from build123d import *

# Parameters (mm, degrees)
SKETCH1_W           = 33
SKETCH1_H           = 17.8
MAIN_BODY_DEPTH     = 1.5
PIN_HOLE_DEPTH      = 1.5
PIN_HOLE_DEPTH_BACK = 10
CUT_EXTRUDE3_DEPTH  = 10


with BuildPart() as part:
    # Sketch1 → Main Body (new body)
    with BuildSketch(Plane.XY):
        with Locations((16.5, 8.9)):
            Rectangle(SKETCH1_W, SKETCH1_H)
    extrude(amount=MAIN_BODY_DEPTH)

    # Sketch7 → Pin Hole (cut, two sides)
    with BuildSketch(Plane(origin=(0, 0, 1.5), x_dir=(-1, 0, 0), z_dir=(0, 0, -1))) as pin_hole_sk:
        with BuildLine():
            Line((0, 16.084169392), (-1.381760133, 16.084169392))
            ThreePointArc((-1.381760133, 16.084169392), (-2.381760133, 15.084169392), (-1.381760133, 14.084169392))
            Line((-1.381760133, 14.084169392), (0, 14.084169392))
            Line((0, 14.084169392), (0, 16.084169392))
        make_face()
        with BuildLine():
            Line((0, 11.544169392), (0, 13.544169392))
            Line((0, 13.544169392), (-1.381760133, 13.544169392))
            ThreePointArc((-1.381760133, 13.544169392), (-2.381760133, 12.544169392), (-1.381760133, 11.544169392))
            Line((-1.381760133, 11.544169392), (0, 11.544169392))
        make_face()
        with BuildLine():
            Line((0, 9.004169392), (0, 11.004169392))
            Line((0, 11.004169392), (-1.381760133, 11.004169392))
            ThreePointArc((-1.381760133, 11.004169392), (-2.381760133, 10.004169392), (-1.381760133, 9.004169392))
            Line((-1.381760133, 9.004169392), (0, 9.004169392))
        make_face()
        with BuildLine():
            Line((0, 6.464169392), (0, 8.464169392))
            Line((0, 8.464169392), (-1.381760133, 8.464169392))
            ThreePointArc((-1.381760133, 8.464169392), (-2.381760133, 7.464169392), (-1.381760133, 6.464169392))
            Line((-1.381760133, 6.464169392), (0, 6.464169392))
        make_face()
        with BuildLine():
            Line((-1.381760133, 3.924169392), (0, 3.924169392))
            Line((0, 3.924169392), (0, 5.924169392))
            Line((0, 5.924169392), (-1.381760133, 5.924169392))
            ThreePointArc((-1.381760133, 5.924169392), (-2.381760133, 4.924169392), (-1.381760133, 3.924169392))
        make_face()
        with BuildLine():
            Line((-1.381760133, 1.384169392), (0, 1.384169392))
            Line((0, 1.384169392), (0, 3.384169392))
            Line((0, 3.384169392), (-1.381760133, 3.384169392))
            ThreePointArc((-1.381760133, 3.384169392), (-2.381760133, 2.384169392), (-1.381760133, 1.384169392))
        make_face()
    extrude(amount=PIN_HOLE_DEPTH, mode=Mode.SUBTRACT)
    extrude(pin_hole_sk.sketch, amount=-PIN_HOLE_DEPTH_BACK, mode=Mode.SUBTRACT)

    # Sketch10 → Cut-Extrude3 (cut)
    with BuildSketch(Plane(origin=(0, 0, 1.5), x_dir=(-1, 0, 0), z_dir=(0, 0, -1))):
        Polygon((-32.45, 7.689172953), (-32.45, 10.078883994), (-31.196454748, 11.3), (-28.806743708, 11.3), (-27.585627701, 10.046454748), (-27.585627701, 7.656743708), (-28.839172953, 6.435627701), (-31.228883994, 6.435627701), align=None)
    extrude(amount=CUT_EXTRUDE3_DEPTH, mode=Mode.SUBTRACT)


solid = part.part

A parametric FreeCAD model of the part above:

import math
import FreeCAD as App
import Part
import Sketcher

V = App.Vector


def add_polygon(sketch, points):
    """Adds a closed chain of lines whose ends are joined by coincident constraints."""
    first, n = sketch.GeometryCount, len(points)
    for a, b in zip(points, points[1:] + points[:1]):
        sketch.addGeometry(Part.LineSegment(App.Vector(*a, 0), App.Vector(*b, 0)), False)
    for i in range(n):
        sketch.addConstraint(Sketcher.Constraint("Coincident", first + i, 2, first + (i + 1) % n, 1))

doc = App.newDocument("Part")
body = doc.addObject("PartDesign::Body", "Body")

sketch1 = body.newObject("Sketcher::SketchObject", "Sketch")
sketch1.AttachmentSupport = (doc.getObject("XY_Plane"), [""])
sketch1.MapMode = "FlatFace"
add_polygon(sketch1, [(0, 18), (0, 0), (33, 0), (33, 18)])
sketch1.addConstraint(Sketcher.Constraint("Vertical", 0))
sketch1.addConstraint(Sketcher.Constraint("Horizontal", 1))
sketch1.addConstraint(Sketcher.Constraint("Vertical", 2))
sketch1.addConstraint(Sketcher.Constraint("Horizontal", 3))
sketch1.addConstraint(Sketcher.Constraint("Coincident", 0, 2, -1, 1))
sketch1.addConstraint(Sketcher.Constraint("DistanceX", 1, 1, 1, 2, 33.0))
sketch1.addConstraint(Sketcher.Constraint("DistanceY", 0, 2, 0, 1, 17.8))
pad1 = body.newObject("PartDesign::Pad", "Pad")
pad1.Profile = sketch1
pad1.Length = 1.5

sketch2 = body.newObject("Sketcher::SketchObject", "Sketch001")
sketch2.AttachmentSupport = (doc.getObject("XY_Plane"), [""])
sketch2.MapMode = "FlatFace"
sketch2.AttachmentOffset = App.Placement(V(0, 0, 1.5), App.Rotation())
sketch2.addGeometry(Part.LineSegment(V(0, 16.1, 0), V(1.4, 16.1, 0)), False)
sketch2.addGeometry(Part.ArcOfCircle(Part.Circle(V(1.4, 15.1, 0), V(0, 0, 1), 1), math.radians(-90), math.radians(90)), False)
sketch2.addGeometry(Part.LineSegment(V(1.4, 14.1, 0), V(0, 14.1, 0)), False)
sketch2.addGeometry(Part.LineSegment(V(0, 14.1, 0), V(0, 16.1, 0)), False)
sketch2.addGeometry(Part.LineSegment(V(0, 11.5, 0), V(0, 13.5, 0)), False)
sketch2.addGeometry(Part.LineSegment(V(0, 13.5, 0), V(1.4, 13.5, 0)), False)
sketch2.addGeometry(Part.ArcOfCircle(Part.Circle(V(1.4, 12.5, 0), V(0, 0, 1), 1), math.radians(-90), math.radians(90)), False)
sketch2.addGeometry(Part.LineSegment(V(1.4, 11.5, 0), V(0, 11.5, 0)), False)
sketch2.addGeometry(Part.LineSegment(V(0, 9, 0), V(0, 11, 0)), False)
sketch2.addGeometry(Part.LineSegment(V(0, 11, 0), V(1.4, 11, 0)), False)
sketch2.addGeometry(Part.ArcOfCircle(Part.Circle(V(1.4, 10, 0), V(0, 0, 1), 1), math.radians(-90), math.radians(90)), False)
sketch2.addGeometry(Part.LineSegment(V(1.4, 9, 0), V(0, 9, 0)), False)
sketch2.addGeometry(Part.LineSegment(V(0, 6.5, 0), V(0, 8.5, 0)), False)
sketch2.addGeometry(Part.LineSegment(V(0, 8.5, 0), V(1.4, 8.5, 0)), False)
sketch2.addGeometry(Part.ArcOfCircle(Part.Circle(V(1.4, 7.5, 0), V(0, 0, 1), 1), math.radians(-90), math.radians(90)), False)
sketch2.addGeometry(Part.LineSegment(V(1.4, 6.5, 0), V(0, 6.5, 0)), False)
sketch2.addGeometry(Part.LineSegment(V(1.4, 3.9, 0), V(0, 3.9, 0)), False)
sketch2.addGeometry(Part.LineSegment(V(0, 3.9, 0), V(0, 5.9, 0)), False)
sketch2.addGeometry(Part.LineSegment(V(0, 5.9, 0), V(1.4, 5.9, 0)), False)
sketch2.addGeometry(Part.ArcOfCircle(Part.Circle(V(1.4, 4.9, 0), V(0, 0, 1), 1), math.radians(-90), math.radians(90)), False)
sketch2.addGeometry(Part.LineSegment(V(1.4, 1.4, 0), V(0, 1.4, 0)), False)
sketch2.addGeometry(Part.LineSegment(V(0, 1.4, 0), V(0, 3.4, 0)), False)
sketch2.addGeometry(Part.LineSegment(V(0, 3.4, 0), V(1.4, 3.4, 0)), False)
sketch2.addGeometry(Part.ArcOfCircle(Part.Circle(V(1.4, 2.4, 0), V(0, 0, 1), 1), math.radians(-90), math.radians(90)), False)
sketch2.addConstraint(Sketcher.Constraint("Tangent", 0, 2, 1, 2))
sketch2.addConstraint(Sketcher.Constraint("Tangent", 1, 1, 2, 1))
sketch2.addConstraint(Sketcher.Constraint("Coincident", 2, 2, 3, 1))
sketch2.addConstraint(Sketcher.Constraint("Coincident", 3, 2, 0, 1))
sketch2.addConstraint(Sketcher.Constraint("Coincident", 4, 2, 5, 1))
sketch2.addConstraint(Sketcher.Constraint("Tangent", 5, 2, 6, 2))
sketch2.addConstraint(Sketcher.Constraint("Tangent", 6, 1, 7, 1))
sketch2.addConstraint(Sketcher.Constraint("Coincident", 7, 2, 4, 1))
sketch2.addConstraint(Sketcher.Constraint("Coincident", 8, 2, 9, 1))
sketch2.addConstraint(Sketcher.Constraint("Tangent", 9, 2, 10, 2))
sketch2.addConstraint(Sketcher.Constraint("Tangent", 10, 1, 11, 1))
sketch2.addConstraint(Sketcher.Constraint("Coincident", 11, 2, 8, 1))
sketch2.addConstraint(Sketcher.Constraint("Coincident", 12, 2, 13, 1))
sketch2.addConstraint(Sketcher.Constraint("Tangent", 13, 2, 14, 2))
sketch2.addConstraint(Sketcher.Constraint("Tangent", 14, 1, 15, 1))
sketch2.addConstraint(Sketcher.Constraint("Coincident", 15, 2, 12, 1))
sketch2.addConstraint(Sketcher.Constraint("Coincident", 16, 2, 17, 1))
sketch2.addConstraint(Sketcher.Constraint("Coincident", 17, 2, 18, 1))
sketch2.addConstraint(Sketcher.Constraint("Tangent", 18, 2, 19, 2))
sketch2.addConstraint(Sketcher.Constraint("Tangent", 19, 1, 16, 1))
sketch2.addConstraint(Sketcher.Constraint("Coincident", 20, 2, 21, 1))
sketch2.addConstraint(Sketcher.Constraint("Coincident", 21, 2, 22, 1))
sketch2.addConstraint(Sketcher.Constraint("Tangent", 22, 2, 23, 2))
sketch2.addConstraint(Sketcher.Constraint("Tangent", 23, 1, 20, 1))
sketch2.addConstraint(Sketcher.Constraint("Horizontal", 0))
sketch2.addConstraint(Sketcher.Constraint("Horizontal", 2))
sketch2.addConstraint(Sketcher.Constraint("Vertical", 3))
sketch2.addConstraint(Sketcher.Constraint("Vertical", 4))
sketch2.addConstraint(Sketcher.Constraint("Horizontal", 5))
sketch2.addConstraint(Sketcher.Constraint("Horizontal", 7))
sketch2.addConstraint(Sketcher.Constraint("Vertical", 8))
sketch2.addConstraint(Sketcher.Constraint("Horizontal", 9))
sketch2.addConstraint(Sketcher.Constraint("Horizontal", 11))
sketch2.addConstraint(Sketcher.Constraint("Vertical", 12))
sketch2.addConstraint(Sketcher.Constraint("Horizontal", 13))
sketch2.addConstraint(Sketcher.Constraint("Horizontal", 15))
sketch2.addConstraint(Sketcher.Constraint("Horizontal", 16))
sketch2.addConstraint(Sketcher.Constraint("Vertical", 17))
sketch2.addConstraint(Sketcher.Constraint("Horizontal", 18))
sketch2.addConstraint(Sketcher.Constraint("Horizontal", 20))
sketch2.addConstraint(Sketcher.Constraint("Vertical", 21))
sketch2.addConstraint(Sketcher.Constraint("Horizontal", 22))
sketch2.addConstraint(Sketcher.Constraint("Equal", 1, 6))
sketch2.addConstraint(Sketcher.Constraint("Equal", 6, 10))
sketch2.addConstraint(Sketcher.Constraint("Equal", 10, 14))
sketch2.addConstraint(Sketcher.Constraint("Equal", 14, 19))
sketch2.addConstraint(Sketcher.Constraint("Equal", 19, 23))
sketch2.addConstraint(Sketcher.Constraint("PointOnObject", 2, 2, -2))
sketch2.addConstraint(Sketcher.Constraint("PointOnObject", 4, 2, -2))
sketch2.addConstraint(Sketcher.Constraint("PointOnObject", 8, 2, -2))
sketch2.addConstraint(Sketcher.Constraint("PointOnObject", 12, 2, -2))
sketch2.addConstraint(Sketcher.Constraint("PointOnObject", 16, 2, -2))
sketch2.addConstraint(Sketcher.Constraint("PointOnObject", 20, 2, -2))
sketch2.addConstraint(Sketcher.Constraint("Vertical", 1, 3, 6, 3))
sketch2.addConstraint(Sketcher.Constraint("Vertical", 6, 3, 10, 3))
sketch2.addConstraint(Sketcher.Constraint("Vertical", 10, 3, 14, 3))
sketch2.addConstraint(Sketcher.Constraint("Vertical", 14, 3, 19, 3))
sketch2.addConstraint(Sketcher.Constraint("Vertical", 19, 3, 23, 3))
sketch2.addConstraint(Sketcher.Constraint("Radius", 1, 1.0))
sketch2.addConstraint(Sketcher.Constraint("DistanceY", 23, 3, 1, 3, 12.7))
sketch2.addConstraint(Sketcher.Constraint("DistanceY", 6, 3, 1, 3, 2.54))
sketch2.addConstraint(Sketcher.Constraint("DistanceY", 10, 3, 6, 3, 2.54))
sketch2.addConstraint(Sketcher.Constraint("DistanceY", 14, 3, 10, 3, 2.54))
sketch2.addConstraint(Sketcher.Constraint("DistanceY", 19, 3, 14, 3, 2.54))
sketch2.addConstraint(Sketcher.Constraint("DistanceX", 0, 1, 0, 2, 1.38176))
sketch2.addConstraint(Sketcher.Constraint("DistanceY", -1, 1, 1, 3, 15.084169))
pocket1 = body.newObject("PartDesign::Pocket", "Pocket")
pocket1.Profile = sketch2
pocket1.Type = "ThroughAll"
pocket1.Midplane = True

sketch3 = body.newObject("Sketcher::SketchObject", "Sketch002")
sketch3.AttachmentSupport = (doc.getObject("XY_Plane"), [""])
sketch3.MapMode = "FlatFace"
sketch3.AttachmentOffset = App.Placement(V(0, 0, 1.5), App.Rotation())
add_polygon(sketch3, [(32.5, 10.1), (32.5, 7.7), (31.2, 6.4), (28.8, 6.4), (27.6, 7.7), (27.6, 10), (28.8, 11.3), (31.2, 11.3)])
sketch3.addConstraint(Sketcher.Constraint("Vertical", 0))
sketch3.addConstraint(Sketcher.Constraint("Horizontal", 2))
sketch3.addConstraint(Sketcher.Constraint("Vertical", 4))
sketch3.addConstraint(Sketcher.Constraint("Horizontal", 6))
sketch3.addConstraint(Sketcher.Constraint("Perpendicular", 1, 3))
sketch3.addConstraint(Sketcher.Constraint("Perpendicular", 3, 5))
sketch3.addConstraint(Sketcher.Constraint("Perpendicular", 5, 7))
sketch3.addConstraint(Sketcher.Constraint("Equal", 2, 6))
sketch3.addConstraint(Sketcher.Constraint("Equal", 6, 0))
sketch3.addConstraint(Sketcher.Constraint("Equal", 0, 4))
sketch3.addConstraint(Sketcher.Constraint("Equal", 1, 3))
sketch3.addConstraint(Sketcher.Constraint("DistanceY", -1, 1, 5, 2, 11.3))
sketch3.addConstraint(Sketcher.Constraint("Distance", 1, 1.75))
sketch3.addConstraint(Sketcher.Constraint("DistanceX", -1, 1, 0, 2, 32.45))
sketch3.addConstraint(Sketcher.Constraint("DistanceX", 2, 2, 2, 1, 2.389711))
sketch3.addConstraint(Sketcher.Constraint("DistanceY", 3, 2, 0, 2, 0.032429))
pocket2 = body.newObject("PartDesign::Pocket", "Pocket001")
pocket2.Profile = sketch3
pocket2.Length = 10

doc.recompute()
